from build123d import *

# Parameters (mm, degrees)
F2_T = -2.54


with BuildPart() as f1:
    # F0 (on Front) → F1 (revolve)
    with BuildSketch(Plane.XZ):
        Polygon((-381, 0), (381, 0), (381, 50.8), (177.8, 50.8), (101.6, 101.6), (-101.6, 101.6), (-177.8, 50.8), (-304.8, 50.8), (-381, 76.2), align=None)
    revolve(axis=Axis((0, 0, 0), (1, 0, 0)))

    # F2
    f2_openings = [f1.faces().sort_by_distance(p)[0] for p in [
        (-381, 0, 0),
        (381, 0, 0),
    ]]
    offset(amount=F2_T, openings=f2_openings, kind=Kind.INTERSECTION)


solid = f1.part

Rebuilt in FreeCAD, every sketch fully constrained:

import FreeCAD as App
import Part
import Sketcher
Q = App.Units.Quantity


def faces_at(feature, points):
    """Names of the faces that lie closest to the given points."""
    faces = feature.Shape.Faces
    near = lambda p: min(range(len(faces)), key=lambda i: faces[i].distToShape(Part.Vertex(*p))[0])
    return sorted({f"Face{near(p) + 1}" for p in points})

doc = App.newDocument("Part")
body = doc.addObject("PartDesign::Body", "Body")

# Sketch on XZ plane
sketch1 = doc.addObject("Sketcher::SketchObject", "Sketch")
body.addObject(sketch1)
sketch1.AttachmentSupport = (doc.XZ_Plane, [""])
sketch1.MapMode = "FlatFace"
sketch1.addGeometry(Part.LineSegment(App.Vector(-381, 0, 0), App.Vector(381, 0, 0)), False)
sketch1.addGeometry(Part.LineSegment(App.Vector(381, 0, 0), App.Vector(381, 50.8, 0)), False)
sketch1.addGeometry(Part.LineSegment(App.Vector(381, 50.8, 0), App.Vector(177.8, 50.8, 0)), False)
sketch1.addGeometry(Part.LineSegment(App.Vector(177.8, 50.8, 0), App.Vector(101.6, 101.6, 0)), False)
sketch1.addGeometry(Part.LineSegment(App.Vector(101.6, 101.6, 0), App.Vector(-101.6, 101.6, 0)), False)
sketch1.addGeometry(Part.LineSegment(App.Vector(-101.6, 101.6, 0), App.Vector(-177.8, 50.8, 0)), False)
sketch1.addGeometry(Part.LineSegment(App.Vector(-177.8, 50.8, 0), App.Vector(-304.8, 50.8, 0)), False)
sketch1.addGeometry(Part.LineSegment(App.Vector(-304.8, 50.8, 0), App.Vector(-381, 76.2, 0)), False)
sketch1.addGeometry(Part.LineSegment(App.Vector(-381, 76.2, 0), App.Vector(-381, 0, 0)), False)
sketch1.addConstraint(Sketcher.Constraint("Coincident", 0, 2, 1, 1))
sketch1.addConstraint(Sketcher.Constraint("Coincident", 1, 2, 2, 1))
sketch1.addConstraint(Sketcher.Constraint("Coincident", 2, 2, 3, 1))
sketch1.addConstraint(Sketcher.Constraint("Coincident", 3, 2, 4, 1))
sketch1.addConstraint(Sketcher.Constraint("Coincident", 4, 2, 5, 1))
sketch1.addConstraint(Sketcher.Constraint("Coincident", 5, 2, 6, 1))
sketch1.addConstraint(Sketcher.Constraint("Coincident", 6, 2, 7, 1))
sketch1.addConstraint(Sketcher.Constraint("Coincident", 7, 2, 8, 1))
sketch1.addConstraint(Sketcher.Constraint("Coincident", 8, 2, 0, 1))
sketch1.addConstraint(Sketcher.Constraint("Horizontal", 0))
sketch1.addConstraint(Sketcher.Constraint("Vertical", 1))
sketch1.addConstraint(Sketcher.Constraint("Horizontal", 2))
sketch1.addConstraint(Sketcher.Constraint("Horizontal", 4))
sketch1.addConstraint(Sketcher.Constraint("Horizontal", 6))
sketch1.addConstraint(Sketcher.Constraint("Vertical", 8))
sketch1.addConstraint(Sketcher.Constraint("Symmetric", 0, 2, 8, 2, -1, 1))
sketch1.addConstraint(Sketcher.Constraint("Symmetric", 2, 2, 5, 2, -2))
sketch1.addConstraint(Sketcher.Constraint("Equal", 2, 4))
sketch1.addConstraint(Sketcher.Constraint("Equal", 3, 5))
sketch1.addConstraint(Sketcher.Constraint("DistanceX", 0, 1, 0, 2, Q("30 in")))
sketch1.addConstraint(Sketcher.Constraint("DistanceX", 2, 2, 2, 1, Q("8 in")))
sketch1.addConstraint(Sketcher.Constraint("DistanceX", 6, 2, 6, 1, Q("5 in")))
sketch1.addConstraint(Sketcher.Constraint("DistanceY", 1, 1, 1, 2, Q("2 in")))
sketch1.addConstraint(Sketcher.Constraint("DistanceY", 8, 2, 8, 1, Q("3 in")))
sketch1.addConstraint(Sketcher.Constraint("DistanceY", -1, 1, 3, 2, Q("4 in")))
revolution = doc.addObject("PartDesign::Revolution", "Revolution")
body.addObject(revolution)
revolution.Profile = sketch1
revolution.ReferenceAxis = (sketch1, ["H_Axis"])
revolution.Angle = 360
doc.recompute()

thickness = doc.addObject("PartDesign::Thickness", "Thickness")
body.addObject(thickness)
thickness.Base = (revolution, faces_at(revolution, [(-381, 0, 0), (381, 0, 0)]))
thickness.Value = Q("0.1 in")
thickness.Reversed = True
thickness.Join = "Intersection"

doc.recompute()
